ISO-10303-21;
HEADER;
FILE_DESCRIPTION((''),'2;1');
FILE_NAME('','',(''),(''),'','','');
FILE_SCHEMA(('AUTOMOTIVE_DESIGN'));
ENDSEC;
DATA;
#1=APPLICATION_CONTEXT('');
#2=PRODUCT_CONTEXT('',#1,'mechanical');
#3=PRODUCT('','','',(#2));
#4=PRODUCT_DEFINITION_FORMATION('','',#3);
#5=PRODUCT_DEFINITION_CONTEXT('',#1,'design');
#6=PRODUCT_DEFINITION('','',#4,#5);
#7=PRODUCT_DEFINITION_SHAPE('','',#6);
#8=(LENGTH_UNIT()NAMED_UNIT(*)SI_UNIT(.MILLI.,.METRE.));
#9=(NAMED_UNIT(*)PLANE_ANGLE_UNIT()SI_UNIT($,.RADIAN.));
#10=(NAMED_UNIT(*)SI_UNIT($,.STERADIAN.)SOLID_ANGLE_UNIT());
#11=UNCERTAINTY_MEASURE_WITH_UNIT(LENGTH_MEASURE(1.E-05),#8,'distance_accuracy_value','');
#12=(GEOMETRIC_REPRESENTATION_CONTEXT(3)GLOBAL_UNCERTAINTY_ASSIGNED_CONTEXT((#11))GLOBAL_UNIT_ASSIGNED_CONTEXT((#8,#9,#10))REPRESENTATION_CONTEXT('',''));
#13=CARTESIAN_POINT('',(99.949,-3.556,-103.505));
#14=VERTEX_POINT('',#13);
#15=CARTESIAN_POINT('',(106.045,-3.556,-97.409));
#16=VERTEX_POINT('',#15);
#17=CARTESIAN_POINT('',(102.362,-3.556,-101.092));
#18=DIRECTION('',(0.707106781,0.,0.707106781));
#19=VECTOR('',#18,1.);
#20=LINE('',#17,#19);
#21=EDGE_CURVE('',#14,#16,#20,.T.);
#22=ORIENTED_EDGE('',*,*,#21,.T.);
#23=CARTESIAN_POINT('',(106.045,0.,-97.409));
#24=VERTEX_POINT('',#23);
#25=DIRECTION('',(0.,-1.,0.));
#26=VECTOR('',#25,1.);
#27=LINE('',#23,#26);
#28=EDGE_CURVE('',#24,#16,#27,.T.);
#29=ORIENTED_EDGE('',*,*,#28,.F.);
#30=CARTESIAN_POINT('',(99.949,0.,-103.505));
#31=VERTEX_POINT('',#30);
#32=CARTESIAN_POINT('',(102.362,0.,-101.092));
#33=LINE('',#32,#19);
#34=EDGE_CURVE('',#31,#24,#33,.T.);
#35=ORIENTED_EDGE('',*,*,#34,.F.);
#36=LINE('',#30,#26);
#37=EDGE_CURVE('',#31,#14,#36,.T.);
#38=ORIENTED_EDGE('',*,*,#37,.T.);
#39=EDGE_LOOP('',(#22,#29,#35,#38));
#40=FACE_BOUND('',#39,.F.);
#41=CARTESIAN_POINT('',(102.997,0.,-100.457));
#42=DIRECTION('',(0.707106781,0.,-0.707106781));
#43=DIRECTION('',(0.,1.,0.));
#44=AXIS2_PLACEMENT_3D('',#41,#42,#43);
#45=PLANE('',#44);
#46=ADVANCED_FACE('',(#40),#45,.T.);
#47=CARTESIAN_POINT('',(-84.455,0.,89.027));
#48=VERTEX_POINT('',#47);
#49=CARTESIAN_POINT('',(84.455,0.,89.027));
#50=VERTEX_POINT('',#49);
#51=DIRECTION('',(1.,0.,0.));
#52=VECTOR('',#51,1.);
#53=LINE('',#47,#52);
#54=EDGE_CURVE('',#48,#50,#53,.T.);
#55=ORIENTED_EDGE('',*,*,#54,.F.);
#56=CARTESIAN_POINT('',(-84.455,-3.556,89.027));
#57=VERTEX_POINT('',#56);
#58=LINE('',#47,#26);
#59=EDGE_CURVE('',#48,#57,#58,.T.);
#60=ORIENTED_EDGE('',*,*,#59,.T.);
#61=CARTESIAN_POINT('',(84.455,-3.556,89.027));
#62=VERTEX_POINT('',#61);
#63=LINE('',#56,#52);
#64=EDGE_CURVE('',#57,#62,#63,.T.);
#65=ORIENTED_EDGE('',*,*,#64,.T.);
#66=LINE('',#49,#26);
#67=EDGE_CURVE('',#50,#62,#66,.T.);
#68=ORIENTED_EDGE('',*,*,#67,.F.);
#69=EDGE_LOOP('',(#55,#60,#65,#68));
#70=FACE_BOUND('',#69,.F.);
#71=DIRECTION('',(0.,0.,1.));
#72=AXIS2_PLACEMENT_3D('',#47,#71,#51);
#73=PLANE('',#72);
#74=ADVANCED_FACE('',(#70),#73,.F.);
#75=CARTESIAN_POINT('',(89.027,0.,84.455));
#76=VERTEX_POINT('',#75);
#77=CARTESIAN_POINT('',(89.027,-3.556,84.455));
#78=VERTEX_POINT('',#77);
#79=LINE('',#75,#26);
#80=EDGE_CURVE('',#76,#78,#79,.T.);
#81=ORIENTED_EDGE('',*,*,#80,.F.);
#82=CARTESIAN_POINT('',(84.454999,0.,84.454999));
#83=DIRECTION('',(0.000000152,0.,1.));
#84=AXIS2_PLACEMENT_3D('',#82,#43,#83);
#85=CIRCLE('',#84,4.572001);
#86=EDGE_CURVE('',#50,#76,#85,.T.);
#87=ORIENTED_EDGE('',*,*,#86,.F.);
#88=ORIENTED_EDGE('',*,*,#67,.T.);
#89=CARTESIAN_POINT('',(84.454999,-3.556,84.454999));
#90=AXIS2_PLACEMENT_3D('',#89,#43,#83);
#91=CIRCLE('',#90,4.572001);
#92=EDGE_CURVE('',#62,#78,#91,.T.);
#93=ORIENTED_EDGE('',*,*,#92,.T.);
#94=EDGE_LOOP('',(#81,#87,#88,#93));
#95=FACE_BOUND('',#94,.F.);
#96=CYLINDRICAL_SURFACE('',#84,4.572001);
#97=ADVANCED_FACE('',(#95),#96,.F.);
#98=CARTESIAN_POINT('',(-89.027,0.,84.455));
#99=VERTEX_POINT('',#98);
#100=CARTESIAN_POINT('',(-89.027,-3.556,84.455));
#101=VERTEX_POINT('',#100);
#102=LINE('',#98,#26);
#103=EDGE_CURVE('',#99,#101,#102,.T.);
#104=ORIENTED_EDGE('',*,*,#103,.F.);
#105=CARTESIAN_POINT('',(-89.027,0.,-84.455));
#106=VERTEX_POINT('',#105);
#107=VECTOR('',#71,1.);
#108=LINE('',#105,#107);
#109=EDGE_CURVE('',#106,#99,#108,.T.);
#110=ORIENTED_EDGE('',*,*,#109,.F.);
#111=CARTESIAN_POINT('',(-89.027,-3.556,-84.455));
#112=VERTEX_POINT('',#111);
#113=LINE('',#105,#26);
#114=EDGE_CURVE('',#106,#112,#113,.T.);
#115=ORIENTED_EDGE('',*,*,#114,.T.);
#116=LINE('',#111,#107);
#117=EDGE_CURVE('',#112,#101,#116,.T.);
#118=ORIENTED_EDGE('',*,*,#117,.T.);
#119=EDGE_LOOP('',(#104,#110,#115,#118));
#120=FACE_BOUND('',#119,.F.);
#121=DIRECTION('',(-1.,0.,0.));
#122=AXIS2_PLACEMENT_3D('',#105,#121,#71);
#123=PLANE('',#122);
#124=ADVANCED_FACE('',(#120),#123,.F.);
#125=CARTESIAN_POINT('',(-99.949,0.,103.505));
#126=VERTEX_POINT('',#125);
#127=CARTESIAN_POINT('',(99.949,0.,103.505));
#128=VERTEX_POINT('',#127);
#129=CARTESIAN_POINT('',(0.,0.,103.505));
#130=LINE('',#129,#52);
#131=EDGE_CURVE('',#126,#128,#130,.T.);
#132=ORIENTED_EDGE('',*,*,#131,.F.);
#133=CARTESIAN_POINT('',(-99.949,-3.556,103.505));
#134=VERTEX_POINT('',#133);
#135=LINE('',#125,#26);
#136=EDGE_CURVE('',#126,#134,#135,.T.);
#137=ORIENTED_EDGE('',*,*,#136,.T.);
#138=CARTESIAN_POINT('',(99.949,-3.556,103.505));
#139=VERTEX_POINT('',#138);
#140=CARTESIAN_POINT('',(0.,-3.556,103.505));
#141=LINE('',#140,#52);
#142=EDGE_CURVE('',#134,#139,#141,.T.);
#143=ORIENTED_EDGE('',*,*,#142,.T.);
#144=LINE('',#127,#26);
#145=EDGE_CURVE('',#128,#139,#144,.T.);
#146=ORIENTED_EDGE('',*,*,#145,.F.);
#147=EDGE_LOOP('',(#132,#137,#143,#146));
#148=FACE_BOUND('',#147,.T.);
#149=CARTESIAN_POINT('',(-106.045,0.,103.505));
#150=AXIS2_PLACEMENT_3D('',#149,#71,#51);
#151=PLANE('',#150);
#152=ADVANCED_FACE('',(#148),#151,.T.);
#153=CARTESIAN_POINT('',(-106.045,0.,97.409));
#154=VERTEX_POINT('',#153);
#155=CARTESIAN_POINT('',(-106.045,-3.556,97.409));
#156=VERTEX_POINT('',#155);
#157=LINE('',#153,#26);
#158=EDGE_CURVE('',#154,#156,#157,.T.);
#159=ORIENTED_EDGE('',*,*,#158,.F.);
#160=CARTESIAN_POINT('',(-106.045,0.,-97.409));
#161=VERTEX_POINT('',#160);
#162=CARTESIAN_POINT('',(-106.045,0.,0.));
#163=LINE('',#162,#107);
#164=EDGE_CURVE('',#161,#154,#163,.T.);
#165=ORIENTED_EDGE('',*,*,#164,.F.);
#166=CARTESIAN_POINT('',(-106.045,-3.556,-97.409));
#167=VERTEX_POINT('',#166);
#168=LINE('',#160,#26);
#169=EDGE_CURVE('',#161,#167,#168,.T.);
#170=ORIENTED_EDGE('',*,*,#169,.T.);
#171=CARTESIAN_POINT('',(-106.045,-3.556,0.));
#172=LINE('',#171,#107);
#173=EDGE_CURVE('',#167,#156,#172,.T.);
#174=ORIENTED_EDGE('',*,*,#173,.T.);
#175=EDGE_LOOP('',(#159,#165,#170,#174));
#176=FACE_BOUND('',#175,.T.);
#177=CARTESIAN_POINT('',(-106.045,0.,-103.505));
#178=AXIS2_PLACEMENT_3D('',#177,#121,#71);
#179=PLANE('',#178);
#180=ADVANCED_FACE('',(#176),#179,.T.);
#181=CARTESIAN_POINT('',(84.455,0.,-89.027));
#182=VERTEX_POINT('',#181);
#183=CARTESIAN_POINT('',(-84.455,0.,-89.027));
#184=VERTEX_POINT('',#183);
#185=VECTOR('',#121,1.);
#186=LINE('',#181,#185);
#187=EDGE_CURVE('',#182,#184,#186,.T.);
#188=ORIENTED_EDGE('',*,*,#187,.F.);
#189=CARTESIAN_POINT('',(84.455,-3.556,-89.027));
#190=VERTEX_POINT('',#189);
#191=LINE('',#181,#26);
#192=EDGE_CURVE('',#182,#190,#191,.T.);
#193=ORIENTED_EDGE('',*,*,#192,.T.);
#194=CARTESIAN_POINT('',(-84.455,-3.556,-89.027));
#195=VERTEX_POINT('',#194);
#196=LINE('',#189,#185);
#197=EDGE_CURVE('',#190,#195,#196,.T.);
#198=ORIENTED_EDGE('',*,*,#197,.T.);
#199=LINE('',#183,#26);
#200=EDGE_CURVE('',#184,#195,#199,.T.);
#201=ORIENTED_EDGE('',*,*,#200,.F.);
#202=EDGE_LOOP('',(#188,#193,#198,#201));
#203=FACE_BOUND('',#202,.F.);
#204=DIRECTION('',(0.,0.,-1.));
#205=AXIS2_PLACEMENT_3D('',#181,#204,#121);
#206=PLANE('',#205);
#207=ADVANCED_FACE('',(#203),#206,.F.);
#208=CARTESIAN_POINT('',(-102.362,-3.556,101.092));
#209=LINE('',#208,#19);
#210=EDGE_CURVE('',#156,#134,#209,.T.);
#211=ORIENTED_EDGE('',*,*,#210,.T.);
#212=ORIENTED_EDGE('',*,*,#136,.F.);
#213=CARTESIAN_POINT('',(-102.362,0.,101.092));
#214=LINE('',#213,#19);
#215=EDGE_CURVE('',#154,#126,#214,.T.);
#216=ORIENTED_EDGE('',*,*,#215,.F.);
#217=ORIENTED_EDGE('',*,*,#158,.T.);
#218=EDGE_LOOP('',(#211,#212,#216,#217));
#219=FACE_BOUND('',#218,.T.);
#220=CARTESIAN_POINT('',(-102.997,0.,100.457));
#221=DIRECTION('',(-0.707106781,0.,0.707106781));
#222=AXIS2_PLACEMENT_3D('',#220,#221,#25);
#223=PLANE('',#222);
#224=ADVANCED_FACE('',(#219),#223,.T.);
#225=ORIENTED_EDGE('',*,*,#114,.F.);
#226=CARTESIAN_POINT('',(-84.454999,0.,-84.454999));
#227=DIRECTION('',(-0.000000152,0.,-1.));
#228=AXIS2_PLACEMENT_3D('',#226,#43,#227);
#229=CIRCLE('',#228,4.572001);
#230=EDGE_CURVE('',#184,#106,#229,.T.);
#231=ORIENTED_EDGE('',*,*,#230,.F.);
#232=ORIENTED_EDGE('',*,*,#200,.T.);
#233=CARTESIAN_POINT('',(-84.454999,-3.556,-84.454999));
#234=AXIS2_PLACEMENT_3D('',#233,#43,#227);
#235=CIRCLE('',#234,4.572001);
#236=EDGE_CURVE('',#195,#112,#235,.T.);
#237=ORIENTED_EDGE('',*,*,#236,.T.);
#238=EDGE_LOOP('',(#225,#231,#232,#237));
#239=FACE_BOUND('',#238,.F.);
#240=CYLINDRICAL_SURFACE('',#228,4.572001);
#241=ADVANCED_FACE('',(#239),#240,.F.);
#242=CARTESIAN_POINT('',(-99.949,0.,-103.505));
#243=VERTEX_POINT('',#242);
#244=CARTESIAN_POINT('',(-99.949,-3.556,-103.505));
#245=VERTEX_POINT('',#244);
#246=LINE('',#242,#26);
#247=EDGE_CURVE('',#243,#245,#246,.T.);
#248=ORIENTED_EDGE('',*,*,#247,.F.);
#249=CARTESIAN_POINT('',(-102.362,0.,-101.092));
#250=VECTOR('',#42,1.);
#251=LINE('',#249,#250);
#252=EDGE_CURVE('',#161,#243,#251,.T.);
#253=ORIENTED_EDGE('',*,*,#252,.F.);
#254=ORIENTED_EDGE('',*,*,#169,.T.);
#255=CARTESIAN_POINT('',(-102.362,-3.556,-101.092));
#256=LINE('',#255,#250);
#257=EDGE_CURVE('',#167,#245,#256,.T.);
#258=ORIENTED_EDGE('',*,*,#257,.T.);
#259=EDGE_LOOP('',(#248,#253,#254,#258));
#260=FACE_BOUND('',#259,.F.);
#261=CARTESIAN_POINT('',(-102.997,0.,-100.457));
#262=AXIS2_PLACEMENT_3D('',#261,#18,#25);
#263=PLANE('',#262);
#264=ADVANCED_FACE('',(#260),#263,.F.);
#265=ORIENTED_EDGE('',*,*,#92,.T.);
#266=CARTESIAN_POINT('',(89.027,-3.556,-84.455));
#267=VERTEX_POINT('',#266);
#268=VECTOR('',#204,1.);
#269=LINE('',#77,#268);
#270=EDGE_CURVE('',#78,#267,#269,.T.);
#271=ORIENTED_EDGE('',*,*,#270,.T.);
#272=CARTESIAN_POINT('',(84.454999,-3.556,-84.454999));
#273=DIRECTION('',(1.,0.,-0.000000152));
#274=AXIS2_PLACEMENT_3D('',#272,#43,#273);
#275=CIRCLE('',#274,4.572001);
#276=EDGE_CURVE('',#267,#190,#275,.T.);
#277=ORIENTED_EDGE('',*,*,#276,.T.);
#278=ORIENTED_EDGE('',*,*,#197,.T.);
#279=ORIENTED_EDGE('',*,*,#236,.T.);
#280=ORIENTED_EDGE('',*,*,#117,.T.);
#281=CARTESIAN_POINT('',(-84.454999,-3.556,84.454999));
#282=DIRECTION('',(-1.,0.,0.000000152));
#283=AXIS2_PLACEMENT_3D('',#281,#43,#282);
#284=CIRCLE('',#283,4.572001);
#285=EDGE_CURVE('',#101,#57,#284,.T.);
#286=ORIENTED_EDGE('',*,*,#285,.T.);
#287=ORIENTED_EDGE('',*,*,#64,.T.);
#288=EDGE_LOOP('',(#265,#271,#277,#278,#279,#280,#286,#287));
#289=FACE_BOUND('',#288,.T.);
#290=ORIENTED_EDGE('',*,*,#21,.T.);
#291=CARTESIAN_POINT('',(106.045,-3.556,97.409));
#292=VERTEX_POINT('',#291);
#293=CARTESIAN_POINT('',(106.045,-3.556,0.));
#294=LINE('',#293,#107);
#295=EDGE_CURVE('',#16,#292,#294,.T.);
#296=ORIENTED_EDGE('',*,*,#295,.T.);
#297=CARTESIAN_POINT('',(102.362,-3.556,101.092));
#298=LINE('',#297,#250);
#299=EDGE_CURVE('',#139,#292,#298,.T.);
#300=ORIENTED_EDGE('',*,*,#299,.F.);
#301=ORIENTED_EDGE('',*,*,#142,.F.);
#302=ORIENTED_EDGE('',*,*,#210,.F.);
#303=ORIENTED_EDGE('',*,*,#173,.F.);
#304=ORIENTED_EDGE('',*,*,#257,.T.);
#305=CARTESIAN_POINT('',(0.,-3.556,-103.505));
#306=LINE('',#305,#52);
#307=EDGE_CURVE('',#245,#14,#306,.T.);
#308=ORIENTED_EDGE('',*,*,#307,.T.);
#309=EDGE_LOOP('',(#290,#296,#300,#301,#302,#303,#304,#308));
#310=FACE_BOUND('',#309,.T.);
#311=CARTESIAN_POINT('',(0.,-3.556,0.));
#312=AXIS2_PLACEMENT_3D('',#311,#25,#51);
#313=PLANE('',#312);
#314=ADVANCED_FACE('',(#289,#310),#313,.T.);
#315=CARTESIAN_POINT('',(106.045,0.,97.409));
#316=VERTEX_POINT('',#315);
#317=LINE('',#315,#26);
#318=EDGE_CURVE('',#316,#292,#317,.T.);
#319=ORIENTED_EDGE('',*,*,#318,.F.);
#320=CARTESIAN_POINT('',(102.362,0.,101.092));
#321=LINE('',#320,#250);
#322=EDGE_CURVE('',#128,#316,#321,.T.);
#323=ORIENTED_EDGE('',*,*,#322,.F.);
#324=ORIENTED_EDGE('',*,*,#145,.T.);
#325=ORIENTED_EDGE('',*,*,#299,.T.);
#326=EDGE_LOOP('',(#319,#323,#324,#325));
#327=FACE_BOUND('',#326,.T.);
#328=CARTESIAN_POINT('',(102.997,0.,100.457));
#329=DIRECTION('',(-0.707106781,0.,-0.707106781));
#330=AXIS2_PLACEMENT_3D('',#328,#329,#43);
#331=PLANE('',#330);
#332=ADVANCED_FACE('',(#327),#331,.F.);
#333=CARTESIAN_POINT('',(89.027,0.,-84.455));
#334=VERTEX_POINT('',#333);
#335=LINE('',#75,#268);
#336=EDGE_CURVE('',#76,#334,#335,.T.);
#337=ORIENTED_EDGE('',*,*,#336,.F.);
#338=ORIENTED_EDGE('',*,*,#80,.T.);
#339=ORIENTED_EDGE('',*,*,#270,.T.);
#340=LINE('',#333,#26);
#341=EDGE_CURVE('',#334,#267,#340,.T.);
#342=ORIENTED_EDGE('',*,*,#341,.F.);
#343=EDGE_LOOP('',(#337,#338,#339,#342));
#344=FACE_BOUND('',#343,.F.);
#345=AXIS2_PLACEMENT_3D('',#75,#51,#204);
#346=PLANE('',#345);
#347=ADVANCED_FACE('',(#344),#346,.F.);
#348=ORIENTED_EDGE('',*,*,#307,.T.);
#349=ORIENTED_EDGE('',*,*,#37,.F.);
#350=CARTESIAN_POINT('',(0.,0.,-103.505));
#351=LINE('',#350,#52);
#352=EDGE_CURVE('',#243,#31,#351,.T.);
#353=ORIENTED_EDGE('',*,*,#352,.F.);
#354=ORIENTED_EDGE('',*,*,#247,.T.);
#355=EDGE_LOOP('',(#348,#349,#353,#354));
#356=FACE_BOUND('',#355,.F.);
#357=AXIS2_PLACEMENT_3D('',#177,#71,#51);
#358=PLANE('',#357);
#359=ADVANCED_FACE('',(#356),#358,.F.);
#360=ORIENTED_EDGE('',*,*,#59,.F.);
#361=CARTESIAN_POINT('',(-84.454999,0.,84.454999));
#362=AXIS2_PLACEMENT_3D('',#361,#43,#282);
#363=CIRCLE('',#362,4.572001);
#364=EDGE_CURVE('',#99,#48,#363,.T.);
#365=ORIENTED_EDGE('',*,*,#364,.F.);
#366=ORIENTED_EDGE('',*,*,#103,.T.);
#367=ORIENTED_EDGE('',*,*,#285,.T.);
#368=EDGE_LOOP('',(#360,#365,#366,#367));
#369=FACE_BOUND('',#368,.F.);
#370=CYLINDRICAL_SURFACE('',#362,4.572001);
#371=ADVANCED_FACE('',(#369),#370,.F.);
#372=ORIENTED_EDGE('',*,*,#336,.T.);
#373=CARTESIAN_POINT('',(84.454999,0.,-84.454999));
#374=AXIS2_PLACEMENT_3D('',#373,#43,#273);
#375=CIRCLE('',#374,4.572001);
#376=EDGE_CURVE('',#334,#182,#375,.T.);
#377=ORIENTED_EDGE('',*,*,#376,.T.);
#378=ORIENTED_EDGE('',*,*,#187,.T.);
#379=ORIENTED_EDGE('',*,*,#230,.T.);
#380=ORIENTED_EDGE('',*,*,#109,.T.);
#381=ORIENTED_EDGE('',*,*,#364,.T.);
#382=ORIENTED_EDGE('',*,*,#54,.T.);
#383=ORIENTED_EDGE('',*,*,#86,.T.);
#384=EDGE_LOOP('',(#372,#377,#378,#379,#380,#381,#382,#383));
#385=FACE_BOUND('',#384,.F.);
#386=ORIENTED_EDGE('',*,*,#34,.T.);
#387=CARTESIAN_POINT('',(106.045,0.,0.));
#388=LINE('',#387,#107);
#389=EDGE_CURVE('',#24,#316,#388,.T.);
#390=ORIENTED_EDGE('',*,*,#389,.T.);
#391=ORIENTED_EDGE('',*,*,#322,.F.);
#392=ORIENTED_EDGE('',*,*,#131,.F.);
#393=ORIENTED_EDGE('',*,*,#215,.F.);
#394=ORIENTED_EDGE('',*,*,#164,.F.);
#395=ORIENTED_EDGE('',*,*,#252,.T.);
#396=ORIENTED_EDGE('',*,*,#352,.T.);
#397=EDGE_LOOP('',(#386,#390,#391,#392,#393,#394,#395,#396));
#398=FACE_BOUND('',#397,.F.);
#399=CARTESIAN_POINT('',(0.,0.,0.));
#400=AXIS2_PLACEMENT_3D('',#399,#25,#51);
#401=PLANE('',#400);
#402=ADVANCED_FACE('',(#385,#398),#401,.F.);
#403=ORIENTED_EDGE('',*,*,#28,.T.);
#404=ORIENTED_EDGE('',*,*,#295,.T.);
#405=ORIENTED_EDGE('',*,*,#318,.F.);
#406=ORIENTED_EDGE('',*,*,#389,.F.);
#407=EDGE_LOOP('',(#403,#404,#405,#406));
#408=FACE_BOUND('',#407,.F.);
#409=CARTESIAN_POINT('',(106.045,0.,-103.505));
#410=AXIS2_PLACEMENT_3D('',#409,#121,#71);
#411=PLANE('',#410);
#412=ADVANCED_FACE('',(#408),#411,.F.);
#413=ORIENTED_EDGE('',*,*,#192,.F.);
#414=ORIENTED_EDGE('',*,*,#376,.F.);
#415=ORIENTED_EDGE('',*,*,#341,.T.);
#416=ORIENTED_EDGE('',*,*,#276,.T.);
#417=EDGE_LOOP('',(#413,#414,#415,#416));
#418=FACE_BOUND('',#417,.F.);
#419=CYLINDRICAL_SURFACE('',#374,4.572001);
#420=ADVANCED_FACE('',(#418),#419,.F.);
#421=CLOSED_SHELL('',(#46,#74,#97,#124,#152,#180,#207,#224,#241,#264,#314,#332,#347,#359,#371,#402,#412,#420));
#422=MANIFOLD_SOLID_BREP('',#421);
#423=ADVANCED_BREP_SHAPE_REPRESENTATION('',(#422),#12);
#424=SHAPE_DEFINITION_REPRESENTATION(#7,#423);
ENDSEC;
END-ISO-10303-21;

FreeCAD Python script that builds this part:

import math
import FreeCAD as App
import Part
import Sketcher

V = App.Vector
Q = App.Units.Quantity


def edges_at(feature, points):
    """Names of the edges that pass closest to the given points."""
    edges = feature.Shape.Edges
    near = lambda p: min(range(len(edges)), key=lambda i: edges[i].distToShape(Part.Vertex(*p))[0])
    return sorted({f"Edge{near(p) + 1}" for p in points})


def add_polygon(sketch, points):
    """Adds a closed chain of lines whose ends are joined by coincident constraints."""
    first, n = sketch.GeometryCount, len(points)
    for a, b in zip(points, points[1:] + points[:1]):
        sketch.addGeometry(Part.LineSegment(App.Vector(*a, 0), App.Vector(*b, 0)), False)
    for i in range(n):
        sketch.addConstraint(Sketcher.Constraint("Coincident", first + i, 2, first + (i + 1) % n, 1))

doc = App.newDocument("Part")
body = doc.addObject("PartDesign::Body", "Body")

sketch1 = doc.addObject("Sketcher::SketchObject", "Sketch")
body.addObject(sketch1)
sketch1.AttachmentSupport = (doc.XZ_Plane, [""])
sketch1.MapMode = "FlatFace"
add_polygon(sketch1, [(-106.045, 103.505), (-106.045, -103.505), (106.045, -103.505), (106.045, 103.505)])
sketch1.addGeometry(Part.ArcOfCircle(Part.Circle(V(84.454999, -84.454999, 0), V(0, 0, 1), 4.572001), math.radians(-89.999991), math.radians(-0.000009)), False)
sketch1.addGeometry(Part.LineSegment(V(84.455, -89.027, 0), V(-84.455, -89.027, 0)), False)
sketch1.addGeometry(Part.ArcOfCircle(Part.Circle(V(-84.454999, -84.454999, 0), V(0, 0, 1), 4.572001), math.radians(-179.999991), math.radians(-90.000009)), False)
sketch1.addGeometry(Part.LineSegment(V(-89.027, -84.455, 0), V(-89.027, 84.455, 0)), False)
sketch1.addGeometry(Part.ArcOfCircle(Part.Circle(V(-84.454999, 84.454999, 0), V(0, 0, 1), 4.572001), math.radians(90.000009), math.radians(179.999991)), False)
sketch1.addGeometry(Part.LineSegment(V(-84.455, 89.027, 0), V(84.455, 89.027, 0)), False)
sketch1.addGeometry(Part.ArcOfCircle(Part.Circle(V(84.454999, 84.454999, 0), V(0, 0, 1), 4.572001), math.radians(0.000009), math.radians(89.999991)), False)
sketch1.addGeometry(Part.LineSegment(V(89.027, 84.455, 0), V(89.027, -84.455, 0)), False)
sketch1.addConstraint([
    Sketcher.Constraint("Tangent", 4, 1, 5, 1),
    Sketcher.Constraint("Tangent", 5, 2, 6, 2),
    Sketcher.Constraint("Tangent", 6, 1, 7, 1),
    Sketcher.Constraint("Tangent", 7, 2, 8, 2),
    Sketcher.Constraint("Tangent", 8, 1, 9, 1),
    Sketcher.Constraint("Tangent", 9, 2, 10, 2),
    Sketcher.Constraint("Tangent", 10, 1, 11, 1),
    Sketcher.Constraint("Tangent", 11, 2, 4, 2),
    Sketcher.Constraint("Vertical", 0),
    Sketcher.Constraint("Horizontal", 1),
    Sketcher.Constraint("Vertical", 2),
    Sketcher.Constraint("Horizontal", 3),
    Sketcher.Constraint("Horizontal", 5),
    Sketcher.Constraint("Vertical", 7),
    Sketcher.Constraint("Horizontal", 9),
    Sketcher.Constraint("Vertical", 11),
    Sketcher.Constraint("Equal", 4, 6),
    Sketcher.Constraint("Equal", 6, 8),
    Sketcher.Constraint("Equal", 8, 10),
    Sketcher.Constraint("Symmetric", 4, 3, 8, 3, -1, 1),
    Sketcher.Constraint("Symmetric", 0, 2, 2, 2, -1, 1),
    Sketcher.Constraint("Equal", 9, 7),
    Sketcher.Constraint("Radius", 4, Q("0.18 in")),
    Sketcher.Constraint("DistanceX", 1, 1, 1, 2, Q("8.35 in")),
    Sketcher.Constraint("DistanceX", 5, 2, 5, 1, Q("6.65 in")),
    Sketcher.Constraint("DistanceY", 0, 2, 0, 1, Q("8.15 in")),
])
pad1 = doc.addObject("PartDesign::Pad", "Pad")
body.addObject(pad1)
pad1.Profile = sketch1
pad1.Length = Q("0.14 in")
doc.recompute()

chamfer = doc.addObject("PartDesign::Chamfer", "Chamfer")
body.addObject(chamfer)
chamfer.Base = (pad1, edges_at(pad1, [
    (-106.045, -1.778, 103.505),
    (106.045, -1.778, 103.505),
    (106.045, -1.778, -103.505),
    (-106.045, -1.778, -103.505),
]))
chamfer.Size = Q("0.24 in")

doc.recompute()
